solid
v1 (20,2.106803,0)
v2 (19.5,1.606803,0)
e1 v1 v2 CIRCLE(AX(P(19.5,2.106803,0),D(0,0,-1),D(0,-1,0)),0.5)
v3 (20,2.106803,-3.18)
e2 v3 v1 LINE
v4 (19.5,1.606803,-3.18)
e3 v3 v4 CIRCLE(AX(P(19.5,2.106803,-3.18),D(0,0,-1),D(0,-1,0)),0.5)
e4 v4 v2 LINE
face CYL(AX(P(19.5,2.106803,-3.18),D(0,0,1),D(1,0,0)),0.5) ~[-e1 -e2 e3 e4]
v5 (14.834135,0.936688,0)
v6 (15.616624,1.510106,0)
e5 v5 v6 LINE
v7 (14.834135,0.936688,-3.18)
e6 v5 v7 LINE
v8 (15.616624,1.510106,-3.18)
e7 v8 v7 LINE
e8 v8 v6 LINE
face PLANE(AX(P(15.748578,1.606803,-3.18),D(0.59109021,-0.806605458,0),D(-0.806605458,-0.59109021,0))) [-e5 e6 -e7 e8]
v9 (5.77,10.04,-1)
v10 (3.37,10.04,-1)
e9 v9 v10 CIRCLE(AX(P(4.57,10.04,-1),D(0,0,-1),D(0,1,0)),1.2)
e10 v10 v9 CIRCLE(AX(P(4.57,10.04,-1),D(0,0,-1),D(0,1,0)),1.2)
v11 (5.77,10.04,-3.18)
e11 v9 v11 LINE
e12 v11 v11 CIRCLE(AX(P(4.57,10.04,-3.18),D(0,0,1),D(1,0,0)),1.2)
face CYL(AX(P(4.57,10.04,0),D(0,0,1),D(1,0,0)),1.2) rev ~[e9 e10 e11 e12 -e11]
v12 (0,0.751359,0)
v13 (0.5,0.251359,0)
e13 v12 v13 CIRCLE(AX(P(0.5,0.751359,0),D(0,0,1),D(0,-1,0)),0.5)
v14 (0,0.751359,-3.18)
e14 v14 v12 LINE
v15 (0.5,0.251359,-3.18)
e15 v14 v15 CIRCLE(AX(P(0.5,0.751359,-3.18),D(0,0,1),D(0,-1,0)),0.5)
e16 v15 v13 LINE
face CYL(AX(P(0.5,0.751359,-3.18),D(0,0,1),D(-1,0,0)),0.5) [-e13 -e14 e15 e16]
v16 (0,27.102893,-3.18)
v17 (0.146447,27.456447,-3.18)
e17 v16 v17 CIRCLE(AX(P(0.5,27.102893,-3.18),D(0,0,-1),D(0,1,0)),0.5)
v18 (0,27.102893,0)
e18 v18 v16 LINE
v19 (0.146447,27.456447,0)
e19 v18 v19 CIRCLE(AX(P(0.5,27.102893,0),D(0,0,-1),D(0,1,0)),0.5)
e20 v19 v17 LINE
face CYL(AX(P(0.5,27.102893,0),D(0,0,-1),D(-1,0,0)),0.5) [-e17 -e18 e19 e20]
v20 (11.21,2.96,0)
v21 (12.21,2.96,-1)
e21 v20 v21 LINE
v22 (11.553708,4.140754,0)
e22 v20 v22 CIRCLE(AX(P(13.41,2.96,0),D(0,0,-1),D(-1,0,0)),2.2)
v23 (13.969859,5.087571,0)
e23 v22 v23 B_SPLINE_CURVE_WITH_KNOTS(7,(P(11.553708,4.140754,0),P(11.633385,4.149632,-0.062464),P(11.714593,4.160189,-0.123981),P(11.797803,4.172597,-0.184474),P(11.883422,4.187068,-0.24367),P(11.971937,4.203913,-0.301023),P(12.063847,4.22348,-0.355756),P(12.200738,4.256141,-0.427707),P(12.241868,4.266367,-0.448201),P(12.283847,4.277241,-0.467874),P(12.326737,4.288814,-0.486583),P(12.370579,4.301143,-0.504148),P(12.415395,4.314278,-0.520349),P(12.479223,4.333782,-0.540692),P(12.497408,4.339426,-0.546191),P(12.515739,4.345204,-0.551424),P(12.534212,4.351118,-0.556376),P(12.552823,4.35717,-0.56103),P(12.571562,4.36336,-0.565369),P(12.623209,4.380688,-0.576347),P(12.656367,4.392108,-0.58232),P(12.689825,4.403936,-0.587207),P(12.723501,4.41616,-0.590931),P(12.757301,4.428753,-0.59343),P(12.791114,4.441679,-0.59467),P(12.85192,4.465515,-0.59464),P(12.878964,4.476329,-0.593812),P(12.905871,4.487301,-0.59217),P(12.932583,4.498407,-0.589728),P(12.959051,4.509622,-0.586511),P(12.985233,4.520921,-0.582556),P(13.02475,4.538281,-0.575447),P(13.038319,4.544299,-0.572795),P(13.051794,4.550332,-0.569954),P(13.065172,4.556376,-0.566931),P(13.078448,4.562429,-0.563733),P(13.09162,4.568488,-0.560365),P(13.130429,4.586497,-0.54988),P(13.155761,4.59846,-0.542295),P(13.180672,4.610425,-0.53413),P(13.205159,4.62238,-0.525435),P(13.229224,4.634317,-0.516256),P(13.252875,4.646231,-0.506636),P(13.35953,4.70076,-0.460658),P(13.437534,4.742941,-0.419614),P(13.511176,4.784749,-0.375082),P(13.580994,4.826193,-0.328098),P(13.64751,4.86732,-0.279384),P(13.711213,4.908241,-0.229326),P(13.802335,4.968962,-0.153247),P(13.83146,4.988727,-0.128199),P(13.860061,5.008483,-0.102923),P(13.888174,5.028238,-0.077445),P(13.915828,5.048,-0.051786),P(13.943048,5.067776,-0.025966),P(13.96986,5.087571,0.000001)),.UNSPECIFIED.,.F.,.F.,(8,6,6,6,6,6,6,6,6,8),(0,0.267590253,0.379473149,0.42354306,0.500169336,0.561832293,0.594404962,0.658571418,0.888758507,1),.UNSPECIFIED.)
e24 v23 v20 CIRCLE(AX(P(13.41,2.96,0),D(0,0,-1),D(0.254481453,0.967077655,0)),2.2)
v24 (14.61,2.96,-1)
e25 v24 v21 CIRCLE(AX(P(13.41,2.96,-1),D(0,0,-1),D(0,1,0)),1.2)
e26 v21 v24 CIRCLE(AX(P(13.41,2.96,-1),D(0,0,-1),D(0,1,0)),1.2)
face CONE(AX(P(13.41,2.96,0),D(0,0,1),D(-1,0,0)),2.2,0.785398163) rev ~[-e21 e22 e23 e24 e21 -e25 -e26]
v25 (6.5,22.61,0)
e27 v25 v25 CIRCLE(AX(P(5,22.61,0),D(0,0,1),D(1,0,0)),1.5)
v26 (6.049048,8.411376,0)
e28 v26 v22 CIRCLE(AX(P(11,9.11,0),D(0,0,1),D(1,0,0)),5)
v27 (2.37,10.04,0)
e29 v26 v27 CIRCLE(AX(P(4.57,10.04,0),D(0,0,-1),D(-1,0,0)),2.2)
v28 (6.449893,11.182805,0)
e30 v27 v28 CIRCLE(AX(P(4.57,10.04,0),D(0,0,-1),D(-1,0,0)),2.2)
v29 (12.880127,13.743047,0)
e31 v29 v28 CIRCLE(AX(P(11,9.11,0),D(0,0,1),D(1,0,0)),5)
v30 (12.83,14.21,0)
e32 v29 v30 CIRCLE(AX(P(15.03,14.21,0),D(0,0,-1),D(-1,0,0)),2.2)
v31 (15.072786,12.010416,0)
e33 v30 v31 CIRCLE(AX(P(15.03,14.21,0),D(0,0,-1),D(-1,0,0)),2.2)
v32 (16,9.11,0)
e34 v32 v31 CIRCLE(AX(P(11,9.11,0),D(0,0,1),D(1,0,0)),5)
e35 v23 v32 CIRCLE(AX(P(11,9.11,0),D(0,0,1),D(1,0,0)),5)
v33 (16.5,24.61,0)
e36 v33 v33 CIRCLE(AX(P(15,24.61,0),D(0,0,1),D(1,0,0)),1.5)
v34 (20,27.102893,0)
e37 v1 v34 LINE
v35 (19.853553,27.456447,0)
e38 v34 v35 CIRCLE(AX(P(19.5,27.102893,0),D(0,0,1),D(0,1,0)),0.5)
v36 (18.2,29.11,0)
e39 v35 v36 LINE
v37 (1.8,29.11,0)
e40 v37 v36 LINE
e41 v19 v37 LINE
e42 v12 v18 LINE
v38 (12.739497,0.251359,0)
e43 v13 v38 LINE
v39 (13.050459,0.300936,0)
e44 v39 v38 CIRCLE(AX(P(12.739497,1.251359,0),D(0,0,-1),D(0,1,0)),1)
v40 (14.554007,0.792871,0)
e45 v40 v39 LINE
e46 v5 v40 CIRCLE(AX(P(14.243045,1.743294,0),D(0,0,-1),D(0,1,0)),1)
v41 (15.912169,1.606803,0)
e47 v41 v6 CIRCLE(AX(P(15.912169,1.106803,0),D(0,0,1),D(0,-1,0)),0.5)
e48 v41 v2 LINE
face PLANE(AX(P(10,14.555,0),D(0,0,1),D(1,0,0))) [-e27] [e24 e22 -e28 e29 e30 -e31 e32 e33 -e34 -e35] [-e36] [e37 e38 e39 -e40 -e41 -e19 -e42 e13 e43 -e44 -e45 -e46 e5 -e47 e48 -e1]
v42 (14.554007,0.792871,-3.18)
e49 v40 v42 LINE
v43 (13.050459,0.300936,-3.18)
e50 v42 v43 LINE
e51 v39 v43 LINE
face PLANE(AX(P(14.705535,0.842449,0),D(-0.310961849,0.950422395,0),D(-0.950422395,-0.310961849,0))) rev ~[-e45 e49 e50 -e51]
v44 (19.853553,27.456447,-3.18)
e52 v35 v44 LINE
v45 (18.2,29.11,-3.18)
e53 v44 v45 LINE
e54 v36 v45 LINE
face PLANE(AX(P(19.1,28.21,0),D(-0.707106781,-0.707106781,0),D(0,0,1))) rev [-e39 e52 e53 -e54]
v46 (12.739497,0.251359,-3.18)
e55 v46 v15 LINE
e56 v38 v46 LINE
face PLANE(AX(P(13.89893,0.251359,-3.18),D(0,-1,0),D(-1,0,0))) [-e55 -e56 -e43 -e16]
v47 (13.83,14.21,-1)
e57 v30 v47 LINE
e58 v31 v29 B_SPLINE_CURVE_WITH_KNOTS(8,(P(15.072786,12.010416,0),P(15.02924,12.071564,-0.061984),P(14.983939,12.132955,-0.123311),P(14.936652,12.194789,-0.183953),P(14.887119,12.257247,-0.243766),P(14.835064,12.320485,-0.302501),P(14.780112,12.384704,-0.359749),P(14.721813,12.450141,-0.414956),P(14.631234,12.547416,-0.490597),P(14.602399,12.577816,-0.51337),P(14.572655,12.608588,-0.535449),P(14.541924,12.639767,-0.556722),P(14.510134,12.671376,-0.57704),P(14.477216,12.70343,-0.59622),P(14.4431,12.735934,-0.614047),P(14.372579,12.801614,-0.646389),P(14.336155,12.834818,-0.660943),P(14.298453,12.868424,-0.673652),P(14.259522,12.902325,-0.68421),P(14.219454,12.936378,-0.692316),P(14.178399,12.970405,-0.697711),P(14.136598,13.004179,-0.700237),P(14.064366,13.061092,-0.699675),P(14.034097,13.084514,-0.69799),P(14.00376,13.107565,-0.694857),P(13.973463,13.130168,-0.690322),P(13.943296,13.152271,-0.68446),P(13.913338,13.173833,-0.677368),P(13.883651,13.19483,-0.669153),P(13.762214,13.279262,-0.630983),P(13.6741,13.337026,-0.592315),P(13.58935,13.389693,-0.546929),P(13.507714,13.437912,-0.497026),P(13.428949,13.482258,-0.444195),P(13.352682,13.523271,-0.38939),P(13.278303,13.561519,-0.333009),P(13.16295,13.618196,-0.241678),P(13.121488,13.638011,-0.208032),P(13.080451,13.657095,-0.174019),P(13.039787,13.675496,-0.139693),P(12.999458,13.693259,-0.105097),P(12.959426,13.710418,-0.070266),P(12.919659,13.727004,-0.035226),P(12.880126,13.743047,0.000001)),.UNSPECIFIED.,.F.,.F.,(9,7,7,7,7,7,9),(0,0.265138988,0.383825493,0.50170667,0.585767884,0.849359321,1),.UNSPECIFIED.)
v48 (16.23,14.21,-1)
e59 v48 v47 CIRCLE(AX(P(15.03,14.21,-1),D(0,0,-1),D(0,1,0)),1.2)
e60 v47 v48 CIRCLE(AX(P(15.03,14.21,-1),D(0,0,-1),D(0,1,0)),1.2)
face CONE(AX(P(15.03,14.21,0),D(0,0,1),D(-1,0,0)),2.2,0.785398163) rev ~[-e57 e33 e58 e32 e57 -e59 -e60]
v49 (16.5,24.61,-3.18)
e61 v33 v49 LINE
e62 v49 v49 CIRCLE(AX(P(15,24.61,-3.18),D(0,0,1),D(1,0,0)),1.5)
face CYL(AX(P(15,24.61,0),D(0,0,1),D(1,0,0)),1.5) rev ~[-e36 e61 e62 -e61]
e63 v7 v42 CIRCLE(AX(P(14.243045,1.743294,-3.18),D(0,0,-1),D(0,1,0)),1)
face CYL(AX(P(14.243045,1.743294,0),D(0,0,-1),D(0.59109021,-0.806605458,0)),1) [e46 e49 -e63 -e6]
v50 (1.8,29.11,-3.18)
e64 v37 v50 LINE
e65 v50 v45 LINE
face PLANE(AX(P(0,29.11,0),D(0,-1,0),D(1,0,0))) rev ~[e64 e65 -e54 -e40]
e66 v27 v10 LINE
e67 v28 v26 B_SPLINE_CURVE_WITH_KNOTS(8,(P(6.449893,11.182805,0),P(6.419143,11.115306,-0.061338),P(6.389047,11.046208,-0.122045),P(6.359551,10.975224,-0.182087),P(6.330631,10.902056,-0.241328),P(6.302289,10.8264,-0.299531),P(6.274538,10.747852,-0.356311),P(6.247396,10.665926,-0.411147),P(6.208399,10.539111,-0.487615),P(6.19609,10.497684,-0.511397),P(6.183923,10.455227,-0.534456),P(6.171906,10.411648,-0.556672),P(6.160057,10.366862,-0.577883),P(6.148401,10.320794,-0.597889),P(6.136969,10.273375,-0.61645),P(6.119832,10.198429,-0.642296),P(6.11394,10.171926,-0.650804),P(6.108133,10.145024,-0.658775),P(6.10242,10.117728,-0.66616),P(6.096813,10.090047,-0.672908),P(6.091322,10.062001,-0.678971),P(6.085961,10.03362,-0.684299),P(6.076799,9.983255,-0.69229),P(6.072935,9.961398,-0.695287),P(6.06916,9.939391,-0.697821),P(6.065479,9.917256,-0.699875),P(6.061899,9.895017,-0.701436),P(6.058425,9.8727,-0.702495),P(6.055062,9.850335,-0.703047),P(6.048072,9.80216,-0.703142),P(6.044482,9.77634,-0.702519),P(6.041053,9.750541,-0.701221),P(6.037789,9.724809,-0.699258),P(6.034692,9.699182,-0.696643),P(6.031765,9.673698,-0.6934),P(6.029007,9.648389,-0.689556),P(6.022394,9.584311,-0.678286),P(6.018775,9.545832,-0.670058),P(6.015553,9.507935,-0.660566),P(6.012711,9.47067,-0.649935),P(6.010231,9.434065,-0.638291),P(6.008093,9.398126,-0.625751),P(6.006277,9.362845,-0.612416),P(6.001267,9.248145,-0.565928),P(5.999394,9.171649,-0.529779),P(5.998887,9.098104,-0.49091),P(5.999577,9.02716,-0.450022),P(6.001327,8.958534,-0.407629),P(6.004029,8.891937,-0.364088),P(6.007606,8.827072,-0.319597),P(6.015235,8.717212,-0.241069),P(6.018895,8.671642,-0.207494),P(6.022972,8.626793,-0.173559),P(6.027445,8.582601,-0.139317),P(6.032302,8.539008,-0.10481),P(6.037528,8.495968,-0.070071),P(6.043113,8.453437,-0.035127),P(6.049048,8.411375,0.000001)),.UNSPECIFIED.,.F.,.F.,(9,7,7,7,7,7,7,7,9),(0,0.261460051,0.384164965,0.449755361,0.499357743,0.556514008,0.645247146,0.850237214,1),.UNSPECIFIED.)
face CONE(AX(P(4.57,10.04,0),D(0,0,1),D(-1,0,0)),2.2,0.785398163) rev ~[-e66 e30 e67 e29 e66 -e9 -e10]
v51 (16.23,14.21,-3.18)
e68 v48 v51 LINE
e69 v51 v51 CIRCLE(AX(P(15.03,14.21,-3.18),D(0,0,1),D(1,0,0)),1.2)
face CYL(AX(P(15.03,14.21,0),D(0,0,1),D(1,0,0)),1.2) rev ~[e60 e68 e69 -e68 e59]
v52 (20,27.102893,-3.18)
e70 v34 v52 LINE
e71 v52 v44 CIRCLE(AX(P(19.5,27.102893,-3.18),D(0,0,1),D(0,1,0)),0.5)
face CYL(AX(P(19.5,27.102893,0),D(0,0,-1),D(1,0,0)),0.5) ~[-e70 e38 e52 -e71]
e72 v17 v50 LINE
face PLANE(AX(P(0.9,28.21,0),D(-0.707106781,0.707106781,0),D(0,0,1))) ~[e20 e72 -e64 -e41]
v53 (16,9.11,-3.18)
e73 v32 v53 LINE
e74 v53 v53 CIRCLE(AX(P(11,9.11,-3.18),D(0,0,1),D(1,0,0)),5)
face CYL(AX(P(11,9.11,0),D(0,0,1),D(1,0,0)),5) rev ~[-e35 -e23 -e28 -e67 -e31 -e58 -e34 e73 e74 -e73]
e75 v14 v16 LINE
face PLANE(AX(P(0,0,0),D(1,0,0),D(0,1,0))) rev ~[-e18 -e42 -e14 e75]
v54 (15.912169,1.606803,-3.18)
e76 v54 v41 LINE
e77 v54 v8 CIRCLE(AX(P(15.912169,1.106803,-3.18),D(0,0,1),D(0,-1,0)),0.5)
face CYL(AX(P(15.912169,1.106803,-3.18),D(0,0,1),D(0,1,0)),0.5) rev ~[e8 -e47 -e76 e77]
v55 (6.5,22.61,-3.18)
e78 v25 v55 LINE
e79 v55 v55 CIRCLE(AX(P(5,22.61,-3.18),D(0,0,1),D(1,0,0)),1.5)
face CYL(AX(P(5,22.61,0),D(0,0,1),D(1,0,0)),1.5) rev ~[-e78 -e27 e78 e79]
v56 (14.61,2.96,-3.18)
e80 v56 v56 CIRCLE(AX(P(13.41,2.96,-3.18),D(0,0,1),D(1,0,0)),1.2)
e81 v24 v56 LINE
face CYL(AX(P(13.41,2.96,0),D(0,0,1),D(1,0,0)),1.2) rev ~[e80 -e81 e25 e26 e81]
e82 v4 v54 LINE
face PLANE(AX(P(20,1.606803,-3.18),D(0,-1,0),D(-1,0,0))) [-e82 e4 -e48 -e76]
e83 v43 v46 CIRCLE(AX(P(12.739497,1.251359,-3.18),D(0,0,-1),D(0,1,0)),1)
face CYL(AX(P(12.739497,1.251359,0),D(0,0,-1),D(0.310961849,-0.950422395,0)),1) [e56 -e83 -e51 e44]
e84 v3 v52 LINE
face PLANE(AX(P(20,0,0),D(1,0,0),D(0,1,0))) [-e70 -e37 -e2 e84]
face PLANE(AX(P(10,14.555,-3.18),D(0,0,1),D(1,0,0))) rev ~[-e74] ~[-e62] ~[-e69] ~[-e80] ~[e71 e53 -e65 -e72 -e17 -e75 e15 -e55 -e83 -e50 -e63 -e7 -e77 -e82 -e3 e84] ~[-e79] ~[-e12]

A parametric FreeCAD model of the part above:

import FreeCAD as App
import Part
import Sketcher
Q = App.Units.Quantity


def edges_at(feature, points):
    """Names of the edges that pass closest to the given points."""
    edges = feature.Shape.Edges
    near = lambda p: min(range(len(edges)), key=lambda i: edges[i].distToShape(Part.Vertex(*p))[0])
    return sorted({f"Edge{near(p) + 1}" for p in points})

doc = App.newDocument("Part")
params = doc.addObject("Spreadsheet::Sheet", "Params")
for row, (alias, value) in enumerate([
    ("sketch1_diameter", "10 mm"),
    ("sketch1_diameter2", "3 mm"),
    ("sketch1_diameter3", "2.4 mm"),
    ("sketch1_width", "20 mm"),
    ("sketch1_height", "29.11 mm"),
    ("pad1_length", "3.18 mm"),
    ("sketch2_diameter", "2.4 mm"),
    ("hole_diameter", "2.4 mm"),
    ("hole_depth", "3.508967 mm"),
    ("hole_csink_diameter", "4.4 mm"),
    ("chamfer_size", "1.8 mm"),
    ("fillet_radius", "0.5 mm"),
    ("sketch3_width", "20 mm"),
    ("pocket1_length", "4 mm"),
    ("fillet2_radius", "0.5 mm"),
    ("sketch4_width", "1 mm"),
    ("sketch4_length", "1 mm"),
    ("pocket2_length", "4 mm"),
    ("fillet3_radius", "1 mm"),
], start=1):
    params.set(f"A{row}", alias)
    params.set(f"B{row}", "=" + value)
    params.setAlias(f"B{row}", alias)

body = doc.addObject("PartDesign::Body", "Body")

# Sketch on XY plane
sketch1 = body.newObject("Sketcher::SketchObject", "Sketch")
sketch1.AttachmentSupport = (doc.getObject("XY_Plane"), [""])
sketch1.MapMode = "FlatFace"
sketch1.addGeometry(Part.LineSegment(App.Vector(0, 29.1, 0), App.Vector(0, 0, 0)), False)
sketch1.addGeometry(Part.LineSegment(App.Vector(0, 0, 0), App.Vector(20, 0, 0)), False)
sketch1.addGeometry(Part.LineSegment(App.Vector(20, 0, 0), App.Vector(20, 29.1, 0)), False)
sketch1.addGeometry(Part.LineSegment(App.Vector(20, 29.1, 0), App.Vector(0, 29.1, 0)), False)
sketch1.addGeometry(Part.Circle(App.Vector(4.6, 10, 0), App.Vector(0, 0, 1), 1.2), False)
sketch1.addGeometry(Part.Circle(App.Vector(13.4, 3, 0), App.Vector(0, 0, 1), 1.2), False)
sketch1.addGeometry(Part.Circle(App.Vector(11, 9.1, 0), App.Vector(0, 0, 1), 5), False)
sketch1.addGeometry(Part.Circle(App.Vector(5, 22.6, 0), App.Vector(0, 0, 1), 1.5), False)
sketch1.addGeometry(Part.Circle(App.Vector(15, 14.2, 0), App.Vector(0, 0, 1), 1.2), False)
sketch1.addGeometry(Part.Circle(App.Vector(15, 24.6, 0), App.Vector(0, 0, 1), 1.5), False)
sketch1.addConstraint(Sketcher.Constraint("Coincident", 0, 2, 1, 1))
sketch1.addConstraint(Sketcher.Constraint("Coincident", 1, 2, 2, 1))
sketch1.addConstraint(Sketcher.Constraint("Coincident", 2, 2, 3, 1))
sketch1.addConstraint(Sketcher.Constraint("Coincident", 3, 2, 0, 1))
sketch1.addConstraint(Sketcher.Constraint("Vertical", 0))
sketch1.addConstraint(Sketcher.Constraint("Horizontal", 1))
sketch1.addConstraint(Sketcher.Constraint("Vertical", 2))
sketch1.addConstraint(Sketcher.Constraint("Horizontal", 3))
sketch1.addConstraint(Sketcher.Constraint("Coincident", 0, 2, -1, 1))
sketch1.addConstraint(Sketcher.Constraint("Equal", 4, 5))
sketch1.addConstraint(Sketcher.Constraint("Equal", 5, 8))
sketch1.addConstraint(Sketcher.Constraint("Equal", 7, 9))
sketch1.addConstraint(Sketcher.Constraint("Diameter", 6, Q("10 mm")))
sketch1.addConstraint(Sketcher.Constraint("Diameter", 7, Q("3 mm")))
sketch1.addConstraint(Sketcher.Constraint("Diameter", 4, Q("2.4 mm")))
sketch1.addConstraint(Sketcher.Constraint("DistanceX", 1, 1, 1, 2, Q("20 mm")))
sketch1.addConstraint(Sketcher.Constraint("DistanceX", -1, 1, 6, 3, Q("11 mm")))
sketch1.addConstraint(Sketcher.Constraint("DistanceX", -1, 1, 7, 3, Q("5 mm")))
sketch1.addConstraint(Sketcher.Constraint("DistanceX", -1, 1, 9, 3, Q("15 mm")))
sketch1.addConstraint(Sketcher.Constraint("DistanceY", 7, 3, 9, 3, Q("2 mm")))
sketch1.addConstraint(Sketcher.Constraint("DistanceY", 6, 3, 2, 2, Q("20 mm")))
sketch1.addConstraint(Sketcher.Constraint("DistanceY", 0, 2, 0, 1, Q("29.11 mm")))
sketch1.addConstraint(Sketcher.Constraint("DistanceY", 6, 3, 7, 3, Q("13.5 mm")))
sketch1.addConstraint(Sketcher.Constraint("DistanceY", 6, 3, 8, 3, Q("5.1 mm")))
sketch1.addConstraint(Sketcher.Constraint("DistanceX", -1, 1, 4, 3, Q("4.57 mm")))
sketch1.addConstraint(Sketcher.Constraint("DistanceY", -1, 1, 4, 3, Q("10.04 mm")))
sketch1.addConstraint(Sketcher.Constraint("DistanceX", -1, 1, 5, 3, Q("13.41 mm")))
sketch1.addConstraint(Sketcher.Constraint("DistanceY", -1, 1, 5, 3, Q("2.96 mm")))
sketch1.addConstraint(Sketcher.Constraint("DistanceX", -1, 1, 8, 3, Q("15.03 mm")))
sketch1.setExpression("Constraints[12]", "Params.sketch1_diameter")
sketch1.setExpression("Constraints[13]", "Params.sketch1_diameter2")
sketch1.setExpression("Constraints[14]", "Params.sketch1_diameter3")
sketch1.setExpression("Constraints[15]", "Params.sketch1_width")
sketch1.setExpression("Constraints[21]", "Params.sketch1_height")
pad1 = body.newObject("PartDesign::Pad", "Pad")
pad1.Profile = sketch1
pad1.setExpression("Length", "Params.pad1_length")
pad1.Reversed = True

# Sketch on XY plane
sketch2 = body.newObject("Sketcher::SketchObject", "Sketch001")
sketch2.AttachmentSupport = (doc.getObject("XY_Plane"), [""])
sketch2.MapMode = "FlatFace"
sketch2.addGeometry(Part.Circle(App.Vector(4.6, 10, 0), App.Vector(0, 0, 1), 1.2), False)
sketch2.addGeometry(Part.Circle(App.Vector(15, 14.2, 0), App.Vector(0, 0, 1), 1.2), False)
sketch2.addGeometry(Part.Circle(App.Vector(13.4, 3, 0), App.Vector(0, 0, 1), 1.2), False)
sketch2.addConstraint(Sketcher.Constraint("Equal", 0, 1))
sketch2.addConstraint(Sketcher.Constraint("Equal", 1, 2))
sketch2.addConstraint(Sketcher.Constraint("Diameter", 0, Q("2.4 mm")))
sketch2.addConstraint(Sketcher.Constraint("DistanceX", -1, 1, 0, 3, Q("4.57 mm")))
sketch2.addConstraint(Sketcher.Constraint("DistanceY", -1, 1, 0, 3, Q("10.04 mm")))
sketch2.addConstraint(Sketcher.Constraint("DistanceX", -1, 1, 1, 3, Q("15.03 mm")))
sketch2.addConstraint(Sketcher.Constraint("DistanceY", -1, 1, 1, 3, Q("14.21 mm")))
sketch2.addConstraint(Sketcher.Constraint("DistanceX", -1, 1, 2, 3, Q("13.41 mm")))
sketch2.addConstraint(Sketcher.Constraint("DistanceY", -1, 1, 2, 3, Q("2.96 mm")))
sketch2.setExpression("Constraints[2]", "Params.sketch2_diameter")
doc.recompute()
hole = body.newObject("PartDesign::Hole", "Hole")
hole.Profile = sketch2
hole.ThreadType = "None"
hole.setExpression("Diameter", "Params.hole_diameter")
hole.DepthType = "Dimension"
hole.setExpression("Depth", "Params.hole_depth")
hole.DrillPoint = "Angled"
hole.DrillPointAngle = 118
hole.HoleCutType = "Countersink"
hole.setExpression("HoleCutDiameter", "Params.hole_csink_diameter")
hole.HoleCutCountersinkAngle = 90
doc.recompute()

chamfer = body.newObject("PartDesign::Chamfer", "Chamfer")
chamfer.Base = (hole, edges_at(hole, [(0, 29.11, -1.59), (20, 29.11, -1.59)]))
chamfer.setExpression("Size", "Params.chamfer_size")
doc.recompute()

fillet = body.newObject("PartDesign::Fillet", "Fillet")
fillet.Base = (chamfer, edges_at(chamfer, [(0, 27.31, -1.59), (20, 27.31, -1.59)]))
fillet.setExpression("Radius", "Params.fillet_radius")

# Sketch on XY plane
sketch3 = body.newObject("Sketcher::SketchObject", "Sketch002")
sketch3.AttachmentSupport = (doc.getObject("XY_Plane"), [""])
sketch3.MapMode = "FlatFace"
sketch3.AttachmentOffset = App.Placement(App.Vector(0, 0, -3.18), App.Rotation())
sketch3.addGeometry(Part.LineSegment(App.Vector(20, 0, 0), App.Vector(0, 0, 0)), False)
sketch3.addGeometry(Part.LineSegment(App.Vector(0, 0, 0), App.Vector(0, 0.25, 0)), False)
sketch3.addGeometry(Part.LineSegment(App.Vector(0, 0.25, 0), App.Vector(13.9, 0.25, 0)), False)
sketch3.addGeometry(Part.LineSegment(App.Vector(13.9, 0.25, 0), App.Vector(15.75, 1.61, 0)), False)
sketch3.addGeometry(Part.LineSegment(App.Vector(15.75, 1.61, 0), App.Vector(20, 1.61, 0)), False)
sketch3.addGeometry(Part.LineSegment(App.Vector(20, 1.61, 0), App.Vector(20, 0, 0)), False)
sketch3.addConstraint(Sketcher.Constraint("Coincident", 0, 2, 1, 1))
sketch3.addConstraint(Sketcher.Constraint("Coincident", 1, 2, 2, 1))
sketch3.addConstraint(Sketcher.Constraint("Coincident", 2, 2, 3, 1))
sketch3.addConstraint(Sketcher.Constraint("Coincident", 3, 2, 4, 1))
sketch3.addConstraint(Sketcher.Constraint("Coincident", 4, 2, 5, 1))
sketch3.addConstraint(Sketcher.Constraint("Coincident", 5, 2, 0, 1))
sketch3.addConstraint(Sketcher.Constraint("Horizontal", 0))
sketch3.addConstraint(Sketcher.Constraint("Vertical", 1))
sketch3.addConstraint(Sketcher.Constraint("Horizontal", 2))
sketch3.addConstraint(Sketcher.Constraint("Horizontal", 4))
sketch3.addConstraint(Sketcher.Constraint("Vertical", 5))
sketch3.addConstraint(Sketcher.Constraint("Coincident", 0, 2, -1, 1))
sketch3.addConstraint(Sketcher.Constraint("DistanceX", 0, 2, 0, 1, Q("20 mm")))
sketch3.addConstraint(Sketcher.Constraint("DistanceX", 2, 1, 2, 2, Q("13.89893 mm")))
sketch3.addConstraint(Sketcher.Constraint("DistanceY", 1, 1, 1, 2, Q("0.251359 mm")))
sketch3.addConstraint(Sketcher.Constraint("DistanceX", 4, 1, 4, 2, Q("4.251422 mm")))
sketch3.addConstraint(Sketcher.Constraint("DistanceY", 5, 2, 5, 1, Q("1.606803 mm")))
sketch3.setExpression("Constraints[12]", "Params.sketch3_width")
pocket1 = body.newObject("PartDesign::Pocket", "Pocket")
pocket1.Profile = sketch3
pocket1.setExpression("Length", "Params.pocket1_length")
pocket1.Reversed = True
doc.recompute()

fillet2 = body.newObject("PartDesign::Fillet", "Fillet001")
fillet2.Base = (pocket1, edges_at(pocket1, [(0, 0.251, -1.59), (20, 1.607, -1.59), (15.749, 1.607, -1.59)]))
fillet2.setExpression("Radius", "Params.fillet2_radius")

# Sketch on XY plane
sketch4 = body.newObject("Sketcher::SketchObject", "Sketch003")
sketch4.AttachmentSupport = (doc.getObject("XY_Plane"), [""])
sketch4.MapMode = "FlatFace"
sketch4.addGeometry(Part.LineSegment(App.Vector(12.9, 0.3, 0), App.Vector(13.9, 0.3, 0)), False)
sketch4.addGeometry(Part.LineSegment(App.Vector(13.9, 0.3, 0), App.Vector(14.7, 0.8, 0)), False)
sketch4.addGeometry(Part.LineSegment(App.Vector(14.7, 0.8, 0), App.Vector(12.9, 0.3, 0)), False)
sketch4.addConstraint(Sketcher.Constraint("Coincident", 0, 2, 1, 1))
sketch4.addConstraint(Sketcher.Constraint("Coincident", 1, 2, 2, 1))
sketch4.addConstraint(Sketcher.Constraint("Coincident", 2, 2, 0, 1))
sketch4.addConstraint(Sketcher.Constraint("Horizontal", 0))
sketch4.addConstraint(Sketcher.Constraint("DistanceX", 0, 1, 0, 2, Q("1 mm")))
sketch4.addConstraint(Sketcher.Constraint("Distance", 1, Q("1 mm")))
sketch4.addConstraint(Sketcher.Constraint("DistanceX", -1, 1, 0, 2, Q("13.89893 mm")))
sketch4.addConstraint(Sketcher.Constraint("DistanceY", -1, 1, 0, 2, Q("0.251359 mm")))
sketch4.addConstraint(Sketcher.Constraint("DistanceY", -1, 1, 1, 2, Q("0.842449 mm")))
sketch4.setExpression("Constraints[4]", "Params.sketch4_width")
sketch4.setExpression("Constraints[5]", "Params.sketch4_length")
pocket2 = body.newObject("PartDesign::Pocket", "Pocket001")
pocket2.Profile = sketch4
pocket2.setExpression("Length", "Params.pocket2_length")
doc.recompute()

fillet3 = body.newObject("PartDesign::Fillet", "Fillet002")
fillet3.Base = (pocket2, edges_at(pocket2, [(12.899, 0.251, -1.59), (14.706, 0.842, -1.59)]))
fillet3.setExpression("Radius", "Params.fillet3_radius")

doc.recompute()
